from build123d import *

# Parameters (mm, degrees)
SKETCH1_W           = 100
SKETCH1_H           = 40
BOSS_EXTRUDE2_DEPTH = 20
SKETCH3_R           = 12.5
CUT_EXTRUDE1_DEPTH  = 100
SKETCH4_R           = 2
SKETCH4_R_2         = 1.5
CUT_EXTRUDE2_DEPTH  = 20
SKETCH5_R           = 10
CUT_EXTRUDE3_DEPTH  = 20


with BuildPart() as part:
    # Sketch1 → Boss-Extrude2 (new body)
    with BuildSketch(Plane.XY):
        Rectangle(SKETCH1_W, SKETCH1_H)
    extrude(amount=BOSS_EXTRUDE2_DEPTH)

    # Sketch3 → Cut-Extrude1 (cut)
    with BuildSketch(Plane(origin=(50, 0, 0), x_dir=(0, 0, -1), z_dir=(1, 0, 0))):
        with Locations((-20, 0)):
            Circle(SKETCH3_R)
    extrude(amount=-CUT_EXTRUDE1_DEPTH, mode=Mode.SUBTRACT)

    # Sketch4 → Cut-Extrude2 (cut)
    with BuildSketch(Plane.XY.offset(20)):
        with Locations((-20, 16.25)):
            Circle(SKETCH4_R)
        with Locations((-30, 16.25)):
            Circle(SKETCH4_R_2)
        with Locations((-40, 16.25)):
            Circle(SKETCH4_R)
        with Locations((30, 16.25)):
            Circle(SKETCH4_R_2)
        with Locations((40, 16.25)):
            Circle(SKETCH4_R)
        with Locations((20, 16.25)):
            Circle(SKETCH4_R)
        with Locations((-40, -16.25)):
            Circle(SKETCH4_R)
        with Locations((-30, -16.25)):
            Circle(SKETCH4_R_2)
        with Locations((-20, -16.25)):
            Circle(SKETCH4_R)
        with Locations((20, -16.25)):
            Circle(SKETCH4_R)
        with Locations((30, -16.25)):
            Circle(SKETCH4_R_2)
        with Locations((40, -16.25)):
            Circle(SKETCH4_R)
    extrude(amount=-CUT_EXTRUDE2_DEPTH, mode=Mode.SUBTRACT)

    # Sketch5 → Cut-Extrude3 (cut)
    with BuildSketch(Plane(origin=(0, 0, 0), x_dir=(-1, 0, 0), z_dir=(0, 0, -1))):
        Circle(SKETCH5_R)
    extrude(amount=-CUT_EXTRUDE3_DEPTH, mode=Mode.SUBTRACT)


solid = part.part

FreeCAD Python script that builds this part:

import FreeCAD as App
import Part
import Sketcher

V = App.Vector

doc = App.newDocument("Part")
body = doc.addObject("PartDesign::Body", "Body")

# Sketch on XY plane
sketch1 = body.newObject("Sketcher::SketchObject", "Sketch")
sketch1.AttachmentSupport = (doc.getObject("XY_Plane"), [""])
sketch1.MapMode = "FlatFace"
sketch1.addGeometry([
    Part.LineSegment(V(-50, 20, 0), V(-50, -20, 0)),
    Part.LineSegment(V(-50, -20, 0), V(50, -20, 0)),
    Part.LineSegment(V(50, -20, 0), V(50, 20, 0)),
    Part.LineSegment(V(50, 20, 0), V(-50, 20, 0)),
], False)
sketch1.addConstraint([
    Sketcher.Constraint("Coincident", 0, 2, 1, 1),
    Sketcher.Constraint("Coincident", 1, 2, 2, 1),
    Sketcher.Constraint("Coincident", 2, 2, 3, 1),
    Sketcher.Constraint("Coincident", 3, 2, 0, 1),
    Sketcher.Constraint("Vertical", 0),
    Sketcher.Constraint("Horizontal", 1),
    Sketcher.Constraint("Vertical", 2),
    Sketcher.Constraint("Horizontal", 3),
    Sketcher.Constraint("Symmetric", 0, 2, 2, 2, -1, 1),
    Sketcher.Constraint("DistanceX", 1, 1, 1, 2, 100.0),
    Sketcher.Constraint("DistanceY", 0, 2, 0, 1, 40.0),
])
pad1 = body.newObject("PartDesign::Pad", "Pad")
pad1.Profile = sketch1
pad1.Length = 20

# Sketch on YZ plane
sketch2 = body.newObject("Sketcher::SketchObject", "Sketch001")
sketch2.AttachmentSupport = (doc.getObject("YZ_Plane"), [""])
sketch2.MapMode = "FlatFace"
sketch2.AttachmentOffset = App.Placement(V(0, 0, 50), App.Rotation())
sketch2.addGeometry(Part.Circle(V(0, 20, 0), V(0, 0, 1), 12.5), False)
sketch2.addConstraint([
    Sketcher.Constraint("PointOnObject", 0, 3, -2),
    Sketcher.Constraint("Diameter", 0, 25.0),
    Sketcher.Constraint("DistanceY", -1, 1, 0, 3, 20.0),
])
pocket1 = body.newObject("PartDesign::Pocket", "Pocket")
pocket1.Profile = sketch2
pocket1.Length = 100

# Sketch on XY plane
sketch3 = body.newObject("Sketcher::SketchObject", "Sketch002")
sketch3.AttachmentSupport = (doc.getObject("XY_Plane"), [""])
sketch3.MapMode = "FlatFace"
sketch3.AttachmentOffset = App.Placement(V(0, 0, 20), App.Rotation())
sketch3.addGeometry([
    Part.Circle(V(-20, 16.25, 0), V(0, 0, 1), 2),  # 0
    Part.Circle(V(-30, 16.25, 0), V(0, 0, 1), 1.5),  # 1
    Part.Circle(V(-40, 16.25, 0), V(0, 0, 1), 2),  # 2
    Part.Circle(V(30, 16.25, 0), V(0, 0, 1), 1.5),  # 3
    Part.Circle(V(40, 16.25, 0), V(0, 0, 1), 2),  # 4
    Part.Circle(V(20, 16.25, 0), V(0, 0, 1), 2),  # 5
    Part.Circle(V(-40, -16.25, 0), V(0, 0, 1), 2),  # 6
    Part.Circle(V(-30, -16.25, 0), V(0, 0, 1), 1.5),  # 7
    Part.Circle(V(-20, -16.25, 0), V(0, 0, 1), 2),  # 8
    Part.Circle(V(20, -16.25, 0), V(0, 0, 1), 2),  # 9
    Part.Circle(V(30, -16.25, 0), V(0, 0, 1), 1.5),  # 10
    Part.Circle(V(40, -16.25, 0), V(0, 0, 1), 2),  # 11
], False)
sketch3.addConstraint([
    Sketcher.Constraint("Equal", 0, 2),
    Sketcher.Constraint("Equal", 1, 3),
    Sketcher.Constraint("Equal", 2, 4),
    Sketcher.Constraint("Equal", 4, 5),
    Sketcher.Constraint("Equal", 5, 6),
    Sketcher.Constraint("Equal", 3, 7),
    Sketcher.Constraint("Equal", 6, 8),
    Sketcher.Constraint("Equal", 8, 9),
    Sketcher.Constraint("Equal", 7, 10),
    Sketcher.Constraint("Equal", 9, 11),
    Sketcher.Constraint("Symmetric", 4, 3, 6, 3, -1, 1),
    Sketcher.Constraint("Symmetric", 3, 3, 7, 3, -1, 1),
    Sketcher.Constraint("Symmetric", 5, 3, 8, 3, -1, 1),
    Sketcher.Constraint("Symmetric", 0, 3, 9, 3, -1, 1),
    Sketcher.Constraint("Symmetric", 1, 3, 10, 3, -1, 1),
    Sketcher.Constraint("Symmetric", 2, 3, 11, 3, -1, 1),
    Sketcher.Constraint("Symmetric", 1, 3, 3, 3, -2),
    Sketcher.Constraint("Symmetric", 2, 3, 4, 3, -2),
    Sketcher.Constraint("Symmetric", 0, 3, 5, 3, -2),
    Sketcher.Constraint("Horizontal", 0, 3, 1, 3),
    Sketcher.Constraint("Horizontal", 1, 3, 2, 3),
    Sketcher.Constraint("Diameter", 0, 4.0),
    Sketcher.Constraint("Diameter", 1, 3.0),
    Sketcher.Constraint("DistanceX", 0, 3, -1, 1, 20.0),
    Sketcher.Constraint("DistanceX", 1, 3, -1, 1, 30.0),
    Sketcher.Constraint("DistanceX", 2, 3, -1, 1, 40.0),
    Sketcher.Constraint("DistanceY", 6, 3, 2, 3, 32.5),
])
pocket2 = body.newObject("PartDesign::Pocket", "Pocket001")
pocket2.Profile = sketch3
pocket2.Length = 20

# Sketch on XY plane
sketch4 = body.newObject("Sketcher::SketchObject", "Sketch003")
sketch4.AttachmentSupport = (doc.getObject("XY_Plane"), [""])
sketch4.MapMode = "FlatFace"
sketch4.addGeometry(Part.Circle(V(0, 0, 0), V(0, 0, 1), 10), False)
sketch4.addConstraint([
    Sketcher.Constraint("Coincident", 0, 3, -1, 1),
    Sketcher.Constraint("Diameter", 0, 20.0),
])
pocket3 = body.newObject("PartDesign::Pocket", "Pocket002")
pocket3.Profile = sketch4
pocket3.Length = 20
pocket3.Reversed = True

doc.recompute()
